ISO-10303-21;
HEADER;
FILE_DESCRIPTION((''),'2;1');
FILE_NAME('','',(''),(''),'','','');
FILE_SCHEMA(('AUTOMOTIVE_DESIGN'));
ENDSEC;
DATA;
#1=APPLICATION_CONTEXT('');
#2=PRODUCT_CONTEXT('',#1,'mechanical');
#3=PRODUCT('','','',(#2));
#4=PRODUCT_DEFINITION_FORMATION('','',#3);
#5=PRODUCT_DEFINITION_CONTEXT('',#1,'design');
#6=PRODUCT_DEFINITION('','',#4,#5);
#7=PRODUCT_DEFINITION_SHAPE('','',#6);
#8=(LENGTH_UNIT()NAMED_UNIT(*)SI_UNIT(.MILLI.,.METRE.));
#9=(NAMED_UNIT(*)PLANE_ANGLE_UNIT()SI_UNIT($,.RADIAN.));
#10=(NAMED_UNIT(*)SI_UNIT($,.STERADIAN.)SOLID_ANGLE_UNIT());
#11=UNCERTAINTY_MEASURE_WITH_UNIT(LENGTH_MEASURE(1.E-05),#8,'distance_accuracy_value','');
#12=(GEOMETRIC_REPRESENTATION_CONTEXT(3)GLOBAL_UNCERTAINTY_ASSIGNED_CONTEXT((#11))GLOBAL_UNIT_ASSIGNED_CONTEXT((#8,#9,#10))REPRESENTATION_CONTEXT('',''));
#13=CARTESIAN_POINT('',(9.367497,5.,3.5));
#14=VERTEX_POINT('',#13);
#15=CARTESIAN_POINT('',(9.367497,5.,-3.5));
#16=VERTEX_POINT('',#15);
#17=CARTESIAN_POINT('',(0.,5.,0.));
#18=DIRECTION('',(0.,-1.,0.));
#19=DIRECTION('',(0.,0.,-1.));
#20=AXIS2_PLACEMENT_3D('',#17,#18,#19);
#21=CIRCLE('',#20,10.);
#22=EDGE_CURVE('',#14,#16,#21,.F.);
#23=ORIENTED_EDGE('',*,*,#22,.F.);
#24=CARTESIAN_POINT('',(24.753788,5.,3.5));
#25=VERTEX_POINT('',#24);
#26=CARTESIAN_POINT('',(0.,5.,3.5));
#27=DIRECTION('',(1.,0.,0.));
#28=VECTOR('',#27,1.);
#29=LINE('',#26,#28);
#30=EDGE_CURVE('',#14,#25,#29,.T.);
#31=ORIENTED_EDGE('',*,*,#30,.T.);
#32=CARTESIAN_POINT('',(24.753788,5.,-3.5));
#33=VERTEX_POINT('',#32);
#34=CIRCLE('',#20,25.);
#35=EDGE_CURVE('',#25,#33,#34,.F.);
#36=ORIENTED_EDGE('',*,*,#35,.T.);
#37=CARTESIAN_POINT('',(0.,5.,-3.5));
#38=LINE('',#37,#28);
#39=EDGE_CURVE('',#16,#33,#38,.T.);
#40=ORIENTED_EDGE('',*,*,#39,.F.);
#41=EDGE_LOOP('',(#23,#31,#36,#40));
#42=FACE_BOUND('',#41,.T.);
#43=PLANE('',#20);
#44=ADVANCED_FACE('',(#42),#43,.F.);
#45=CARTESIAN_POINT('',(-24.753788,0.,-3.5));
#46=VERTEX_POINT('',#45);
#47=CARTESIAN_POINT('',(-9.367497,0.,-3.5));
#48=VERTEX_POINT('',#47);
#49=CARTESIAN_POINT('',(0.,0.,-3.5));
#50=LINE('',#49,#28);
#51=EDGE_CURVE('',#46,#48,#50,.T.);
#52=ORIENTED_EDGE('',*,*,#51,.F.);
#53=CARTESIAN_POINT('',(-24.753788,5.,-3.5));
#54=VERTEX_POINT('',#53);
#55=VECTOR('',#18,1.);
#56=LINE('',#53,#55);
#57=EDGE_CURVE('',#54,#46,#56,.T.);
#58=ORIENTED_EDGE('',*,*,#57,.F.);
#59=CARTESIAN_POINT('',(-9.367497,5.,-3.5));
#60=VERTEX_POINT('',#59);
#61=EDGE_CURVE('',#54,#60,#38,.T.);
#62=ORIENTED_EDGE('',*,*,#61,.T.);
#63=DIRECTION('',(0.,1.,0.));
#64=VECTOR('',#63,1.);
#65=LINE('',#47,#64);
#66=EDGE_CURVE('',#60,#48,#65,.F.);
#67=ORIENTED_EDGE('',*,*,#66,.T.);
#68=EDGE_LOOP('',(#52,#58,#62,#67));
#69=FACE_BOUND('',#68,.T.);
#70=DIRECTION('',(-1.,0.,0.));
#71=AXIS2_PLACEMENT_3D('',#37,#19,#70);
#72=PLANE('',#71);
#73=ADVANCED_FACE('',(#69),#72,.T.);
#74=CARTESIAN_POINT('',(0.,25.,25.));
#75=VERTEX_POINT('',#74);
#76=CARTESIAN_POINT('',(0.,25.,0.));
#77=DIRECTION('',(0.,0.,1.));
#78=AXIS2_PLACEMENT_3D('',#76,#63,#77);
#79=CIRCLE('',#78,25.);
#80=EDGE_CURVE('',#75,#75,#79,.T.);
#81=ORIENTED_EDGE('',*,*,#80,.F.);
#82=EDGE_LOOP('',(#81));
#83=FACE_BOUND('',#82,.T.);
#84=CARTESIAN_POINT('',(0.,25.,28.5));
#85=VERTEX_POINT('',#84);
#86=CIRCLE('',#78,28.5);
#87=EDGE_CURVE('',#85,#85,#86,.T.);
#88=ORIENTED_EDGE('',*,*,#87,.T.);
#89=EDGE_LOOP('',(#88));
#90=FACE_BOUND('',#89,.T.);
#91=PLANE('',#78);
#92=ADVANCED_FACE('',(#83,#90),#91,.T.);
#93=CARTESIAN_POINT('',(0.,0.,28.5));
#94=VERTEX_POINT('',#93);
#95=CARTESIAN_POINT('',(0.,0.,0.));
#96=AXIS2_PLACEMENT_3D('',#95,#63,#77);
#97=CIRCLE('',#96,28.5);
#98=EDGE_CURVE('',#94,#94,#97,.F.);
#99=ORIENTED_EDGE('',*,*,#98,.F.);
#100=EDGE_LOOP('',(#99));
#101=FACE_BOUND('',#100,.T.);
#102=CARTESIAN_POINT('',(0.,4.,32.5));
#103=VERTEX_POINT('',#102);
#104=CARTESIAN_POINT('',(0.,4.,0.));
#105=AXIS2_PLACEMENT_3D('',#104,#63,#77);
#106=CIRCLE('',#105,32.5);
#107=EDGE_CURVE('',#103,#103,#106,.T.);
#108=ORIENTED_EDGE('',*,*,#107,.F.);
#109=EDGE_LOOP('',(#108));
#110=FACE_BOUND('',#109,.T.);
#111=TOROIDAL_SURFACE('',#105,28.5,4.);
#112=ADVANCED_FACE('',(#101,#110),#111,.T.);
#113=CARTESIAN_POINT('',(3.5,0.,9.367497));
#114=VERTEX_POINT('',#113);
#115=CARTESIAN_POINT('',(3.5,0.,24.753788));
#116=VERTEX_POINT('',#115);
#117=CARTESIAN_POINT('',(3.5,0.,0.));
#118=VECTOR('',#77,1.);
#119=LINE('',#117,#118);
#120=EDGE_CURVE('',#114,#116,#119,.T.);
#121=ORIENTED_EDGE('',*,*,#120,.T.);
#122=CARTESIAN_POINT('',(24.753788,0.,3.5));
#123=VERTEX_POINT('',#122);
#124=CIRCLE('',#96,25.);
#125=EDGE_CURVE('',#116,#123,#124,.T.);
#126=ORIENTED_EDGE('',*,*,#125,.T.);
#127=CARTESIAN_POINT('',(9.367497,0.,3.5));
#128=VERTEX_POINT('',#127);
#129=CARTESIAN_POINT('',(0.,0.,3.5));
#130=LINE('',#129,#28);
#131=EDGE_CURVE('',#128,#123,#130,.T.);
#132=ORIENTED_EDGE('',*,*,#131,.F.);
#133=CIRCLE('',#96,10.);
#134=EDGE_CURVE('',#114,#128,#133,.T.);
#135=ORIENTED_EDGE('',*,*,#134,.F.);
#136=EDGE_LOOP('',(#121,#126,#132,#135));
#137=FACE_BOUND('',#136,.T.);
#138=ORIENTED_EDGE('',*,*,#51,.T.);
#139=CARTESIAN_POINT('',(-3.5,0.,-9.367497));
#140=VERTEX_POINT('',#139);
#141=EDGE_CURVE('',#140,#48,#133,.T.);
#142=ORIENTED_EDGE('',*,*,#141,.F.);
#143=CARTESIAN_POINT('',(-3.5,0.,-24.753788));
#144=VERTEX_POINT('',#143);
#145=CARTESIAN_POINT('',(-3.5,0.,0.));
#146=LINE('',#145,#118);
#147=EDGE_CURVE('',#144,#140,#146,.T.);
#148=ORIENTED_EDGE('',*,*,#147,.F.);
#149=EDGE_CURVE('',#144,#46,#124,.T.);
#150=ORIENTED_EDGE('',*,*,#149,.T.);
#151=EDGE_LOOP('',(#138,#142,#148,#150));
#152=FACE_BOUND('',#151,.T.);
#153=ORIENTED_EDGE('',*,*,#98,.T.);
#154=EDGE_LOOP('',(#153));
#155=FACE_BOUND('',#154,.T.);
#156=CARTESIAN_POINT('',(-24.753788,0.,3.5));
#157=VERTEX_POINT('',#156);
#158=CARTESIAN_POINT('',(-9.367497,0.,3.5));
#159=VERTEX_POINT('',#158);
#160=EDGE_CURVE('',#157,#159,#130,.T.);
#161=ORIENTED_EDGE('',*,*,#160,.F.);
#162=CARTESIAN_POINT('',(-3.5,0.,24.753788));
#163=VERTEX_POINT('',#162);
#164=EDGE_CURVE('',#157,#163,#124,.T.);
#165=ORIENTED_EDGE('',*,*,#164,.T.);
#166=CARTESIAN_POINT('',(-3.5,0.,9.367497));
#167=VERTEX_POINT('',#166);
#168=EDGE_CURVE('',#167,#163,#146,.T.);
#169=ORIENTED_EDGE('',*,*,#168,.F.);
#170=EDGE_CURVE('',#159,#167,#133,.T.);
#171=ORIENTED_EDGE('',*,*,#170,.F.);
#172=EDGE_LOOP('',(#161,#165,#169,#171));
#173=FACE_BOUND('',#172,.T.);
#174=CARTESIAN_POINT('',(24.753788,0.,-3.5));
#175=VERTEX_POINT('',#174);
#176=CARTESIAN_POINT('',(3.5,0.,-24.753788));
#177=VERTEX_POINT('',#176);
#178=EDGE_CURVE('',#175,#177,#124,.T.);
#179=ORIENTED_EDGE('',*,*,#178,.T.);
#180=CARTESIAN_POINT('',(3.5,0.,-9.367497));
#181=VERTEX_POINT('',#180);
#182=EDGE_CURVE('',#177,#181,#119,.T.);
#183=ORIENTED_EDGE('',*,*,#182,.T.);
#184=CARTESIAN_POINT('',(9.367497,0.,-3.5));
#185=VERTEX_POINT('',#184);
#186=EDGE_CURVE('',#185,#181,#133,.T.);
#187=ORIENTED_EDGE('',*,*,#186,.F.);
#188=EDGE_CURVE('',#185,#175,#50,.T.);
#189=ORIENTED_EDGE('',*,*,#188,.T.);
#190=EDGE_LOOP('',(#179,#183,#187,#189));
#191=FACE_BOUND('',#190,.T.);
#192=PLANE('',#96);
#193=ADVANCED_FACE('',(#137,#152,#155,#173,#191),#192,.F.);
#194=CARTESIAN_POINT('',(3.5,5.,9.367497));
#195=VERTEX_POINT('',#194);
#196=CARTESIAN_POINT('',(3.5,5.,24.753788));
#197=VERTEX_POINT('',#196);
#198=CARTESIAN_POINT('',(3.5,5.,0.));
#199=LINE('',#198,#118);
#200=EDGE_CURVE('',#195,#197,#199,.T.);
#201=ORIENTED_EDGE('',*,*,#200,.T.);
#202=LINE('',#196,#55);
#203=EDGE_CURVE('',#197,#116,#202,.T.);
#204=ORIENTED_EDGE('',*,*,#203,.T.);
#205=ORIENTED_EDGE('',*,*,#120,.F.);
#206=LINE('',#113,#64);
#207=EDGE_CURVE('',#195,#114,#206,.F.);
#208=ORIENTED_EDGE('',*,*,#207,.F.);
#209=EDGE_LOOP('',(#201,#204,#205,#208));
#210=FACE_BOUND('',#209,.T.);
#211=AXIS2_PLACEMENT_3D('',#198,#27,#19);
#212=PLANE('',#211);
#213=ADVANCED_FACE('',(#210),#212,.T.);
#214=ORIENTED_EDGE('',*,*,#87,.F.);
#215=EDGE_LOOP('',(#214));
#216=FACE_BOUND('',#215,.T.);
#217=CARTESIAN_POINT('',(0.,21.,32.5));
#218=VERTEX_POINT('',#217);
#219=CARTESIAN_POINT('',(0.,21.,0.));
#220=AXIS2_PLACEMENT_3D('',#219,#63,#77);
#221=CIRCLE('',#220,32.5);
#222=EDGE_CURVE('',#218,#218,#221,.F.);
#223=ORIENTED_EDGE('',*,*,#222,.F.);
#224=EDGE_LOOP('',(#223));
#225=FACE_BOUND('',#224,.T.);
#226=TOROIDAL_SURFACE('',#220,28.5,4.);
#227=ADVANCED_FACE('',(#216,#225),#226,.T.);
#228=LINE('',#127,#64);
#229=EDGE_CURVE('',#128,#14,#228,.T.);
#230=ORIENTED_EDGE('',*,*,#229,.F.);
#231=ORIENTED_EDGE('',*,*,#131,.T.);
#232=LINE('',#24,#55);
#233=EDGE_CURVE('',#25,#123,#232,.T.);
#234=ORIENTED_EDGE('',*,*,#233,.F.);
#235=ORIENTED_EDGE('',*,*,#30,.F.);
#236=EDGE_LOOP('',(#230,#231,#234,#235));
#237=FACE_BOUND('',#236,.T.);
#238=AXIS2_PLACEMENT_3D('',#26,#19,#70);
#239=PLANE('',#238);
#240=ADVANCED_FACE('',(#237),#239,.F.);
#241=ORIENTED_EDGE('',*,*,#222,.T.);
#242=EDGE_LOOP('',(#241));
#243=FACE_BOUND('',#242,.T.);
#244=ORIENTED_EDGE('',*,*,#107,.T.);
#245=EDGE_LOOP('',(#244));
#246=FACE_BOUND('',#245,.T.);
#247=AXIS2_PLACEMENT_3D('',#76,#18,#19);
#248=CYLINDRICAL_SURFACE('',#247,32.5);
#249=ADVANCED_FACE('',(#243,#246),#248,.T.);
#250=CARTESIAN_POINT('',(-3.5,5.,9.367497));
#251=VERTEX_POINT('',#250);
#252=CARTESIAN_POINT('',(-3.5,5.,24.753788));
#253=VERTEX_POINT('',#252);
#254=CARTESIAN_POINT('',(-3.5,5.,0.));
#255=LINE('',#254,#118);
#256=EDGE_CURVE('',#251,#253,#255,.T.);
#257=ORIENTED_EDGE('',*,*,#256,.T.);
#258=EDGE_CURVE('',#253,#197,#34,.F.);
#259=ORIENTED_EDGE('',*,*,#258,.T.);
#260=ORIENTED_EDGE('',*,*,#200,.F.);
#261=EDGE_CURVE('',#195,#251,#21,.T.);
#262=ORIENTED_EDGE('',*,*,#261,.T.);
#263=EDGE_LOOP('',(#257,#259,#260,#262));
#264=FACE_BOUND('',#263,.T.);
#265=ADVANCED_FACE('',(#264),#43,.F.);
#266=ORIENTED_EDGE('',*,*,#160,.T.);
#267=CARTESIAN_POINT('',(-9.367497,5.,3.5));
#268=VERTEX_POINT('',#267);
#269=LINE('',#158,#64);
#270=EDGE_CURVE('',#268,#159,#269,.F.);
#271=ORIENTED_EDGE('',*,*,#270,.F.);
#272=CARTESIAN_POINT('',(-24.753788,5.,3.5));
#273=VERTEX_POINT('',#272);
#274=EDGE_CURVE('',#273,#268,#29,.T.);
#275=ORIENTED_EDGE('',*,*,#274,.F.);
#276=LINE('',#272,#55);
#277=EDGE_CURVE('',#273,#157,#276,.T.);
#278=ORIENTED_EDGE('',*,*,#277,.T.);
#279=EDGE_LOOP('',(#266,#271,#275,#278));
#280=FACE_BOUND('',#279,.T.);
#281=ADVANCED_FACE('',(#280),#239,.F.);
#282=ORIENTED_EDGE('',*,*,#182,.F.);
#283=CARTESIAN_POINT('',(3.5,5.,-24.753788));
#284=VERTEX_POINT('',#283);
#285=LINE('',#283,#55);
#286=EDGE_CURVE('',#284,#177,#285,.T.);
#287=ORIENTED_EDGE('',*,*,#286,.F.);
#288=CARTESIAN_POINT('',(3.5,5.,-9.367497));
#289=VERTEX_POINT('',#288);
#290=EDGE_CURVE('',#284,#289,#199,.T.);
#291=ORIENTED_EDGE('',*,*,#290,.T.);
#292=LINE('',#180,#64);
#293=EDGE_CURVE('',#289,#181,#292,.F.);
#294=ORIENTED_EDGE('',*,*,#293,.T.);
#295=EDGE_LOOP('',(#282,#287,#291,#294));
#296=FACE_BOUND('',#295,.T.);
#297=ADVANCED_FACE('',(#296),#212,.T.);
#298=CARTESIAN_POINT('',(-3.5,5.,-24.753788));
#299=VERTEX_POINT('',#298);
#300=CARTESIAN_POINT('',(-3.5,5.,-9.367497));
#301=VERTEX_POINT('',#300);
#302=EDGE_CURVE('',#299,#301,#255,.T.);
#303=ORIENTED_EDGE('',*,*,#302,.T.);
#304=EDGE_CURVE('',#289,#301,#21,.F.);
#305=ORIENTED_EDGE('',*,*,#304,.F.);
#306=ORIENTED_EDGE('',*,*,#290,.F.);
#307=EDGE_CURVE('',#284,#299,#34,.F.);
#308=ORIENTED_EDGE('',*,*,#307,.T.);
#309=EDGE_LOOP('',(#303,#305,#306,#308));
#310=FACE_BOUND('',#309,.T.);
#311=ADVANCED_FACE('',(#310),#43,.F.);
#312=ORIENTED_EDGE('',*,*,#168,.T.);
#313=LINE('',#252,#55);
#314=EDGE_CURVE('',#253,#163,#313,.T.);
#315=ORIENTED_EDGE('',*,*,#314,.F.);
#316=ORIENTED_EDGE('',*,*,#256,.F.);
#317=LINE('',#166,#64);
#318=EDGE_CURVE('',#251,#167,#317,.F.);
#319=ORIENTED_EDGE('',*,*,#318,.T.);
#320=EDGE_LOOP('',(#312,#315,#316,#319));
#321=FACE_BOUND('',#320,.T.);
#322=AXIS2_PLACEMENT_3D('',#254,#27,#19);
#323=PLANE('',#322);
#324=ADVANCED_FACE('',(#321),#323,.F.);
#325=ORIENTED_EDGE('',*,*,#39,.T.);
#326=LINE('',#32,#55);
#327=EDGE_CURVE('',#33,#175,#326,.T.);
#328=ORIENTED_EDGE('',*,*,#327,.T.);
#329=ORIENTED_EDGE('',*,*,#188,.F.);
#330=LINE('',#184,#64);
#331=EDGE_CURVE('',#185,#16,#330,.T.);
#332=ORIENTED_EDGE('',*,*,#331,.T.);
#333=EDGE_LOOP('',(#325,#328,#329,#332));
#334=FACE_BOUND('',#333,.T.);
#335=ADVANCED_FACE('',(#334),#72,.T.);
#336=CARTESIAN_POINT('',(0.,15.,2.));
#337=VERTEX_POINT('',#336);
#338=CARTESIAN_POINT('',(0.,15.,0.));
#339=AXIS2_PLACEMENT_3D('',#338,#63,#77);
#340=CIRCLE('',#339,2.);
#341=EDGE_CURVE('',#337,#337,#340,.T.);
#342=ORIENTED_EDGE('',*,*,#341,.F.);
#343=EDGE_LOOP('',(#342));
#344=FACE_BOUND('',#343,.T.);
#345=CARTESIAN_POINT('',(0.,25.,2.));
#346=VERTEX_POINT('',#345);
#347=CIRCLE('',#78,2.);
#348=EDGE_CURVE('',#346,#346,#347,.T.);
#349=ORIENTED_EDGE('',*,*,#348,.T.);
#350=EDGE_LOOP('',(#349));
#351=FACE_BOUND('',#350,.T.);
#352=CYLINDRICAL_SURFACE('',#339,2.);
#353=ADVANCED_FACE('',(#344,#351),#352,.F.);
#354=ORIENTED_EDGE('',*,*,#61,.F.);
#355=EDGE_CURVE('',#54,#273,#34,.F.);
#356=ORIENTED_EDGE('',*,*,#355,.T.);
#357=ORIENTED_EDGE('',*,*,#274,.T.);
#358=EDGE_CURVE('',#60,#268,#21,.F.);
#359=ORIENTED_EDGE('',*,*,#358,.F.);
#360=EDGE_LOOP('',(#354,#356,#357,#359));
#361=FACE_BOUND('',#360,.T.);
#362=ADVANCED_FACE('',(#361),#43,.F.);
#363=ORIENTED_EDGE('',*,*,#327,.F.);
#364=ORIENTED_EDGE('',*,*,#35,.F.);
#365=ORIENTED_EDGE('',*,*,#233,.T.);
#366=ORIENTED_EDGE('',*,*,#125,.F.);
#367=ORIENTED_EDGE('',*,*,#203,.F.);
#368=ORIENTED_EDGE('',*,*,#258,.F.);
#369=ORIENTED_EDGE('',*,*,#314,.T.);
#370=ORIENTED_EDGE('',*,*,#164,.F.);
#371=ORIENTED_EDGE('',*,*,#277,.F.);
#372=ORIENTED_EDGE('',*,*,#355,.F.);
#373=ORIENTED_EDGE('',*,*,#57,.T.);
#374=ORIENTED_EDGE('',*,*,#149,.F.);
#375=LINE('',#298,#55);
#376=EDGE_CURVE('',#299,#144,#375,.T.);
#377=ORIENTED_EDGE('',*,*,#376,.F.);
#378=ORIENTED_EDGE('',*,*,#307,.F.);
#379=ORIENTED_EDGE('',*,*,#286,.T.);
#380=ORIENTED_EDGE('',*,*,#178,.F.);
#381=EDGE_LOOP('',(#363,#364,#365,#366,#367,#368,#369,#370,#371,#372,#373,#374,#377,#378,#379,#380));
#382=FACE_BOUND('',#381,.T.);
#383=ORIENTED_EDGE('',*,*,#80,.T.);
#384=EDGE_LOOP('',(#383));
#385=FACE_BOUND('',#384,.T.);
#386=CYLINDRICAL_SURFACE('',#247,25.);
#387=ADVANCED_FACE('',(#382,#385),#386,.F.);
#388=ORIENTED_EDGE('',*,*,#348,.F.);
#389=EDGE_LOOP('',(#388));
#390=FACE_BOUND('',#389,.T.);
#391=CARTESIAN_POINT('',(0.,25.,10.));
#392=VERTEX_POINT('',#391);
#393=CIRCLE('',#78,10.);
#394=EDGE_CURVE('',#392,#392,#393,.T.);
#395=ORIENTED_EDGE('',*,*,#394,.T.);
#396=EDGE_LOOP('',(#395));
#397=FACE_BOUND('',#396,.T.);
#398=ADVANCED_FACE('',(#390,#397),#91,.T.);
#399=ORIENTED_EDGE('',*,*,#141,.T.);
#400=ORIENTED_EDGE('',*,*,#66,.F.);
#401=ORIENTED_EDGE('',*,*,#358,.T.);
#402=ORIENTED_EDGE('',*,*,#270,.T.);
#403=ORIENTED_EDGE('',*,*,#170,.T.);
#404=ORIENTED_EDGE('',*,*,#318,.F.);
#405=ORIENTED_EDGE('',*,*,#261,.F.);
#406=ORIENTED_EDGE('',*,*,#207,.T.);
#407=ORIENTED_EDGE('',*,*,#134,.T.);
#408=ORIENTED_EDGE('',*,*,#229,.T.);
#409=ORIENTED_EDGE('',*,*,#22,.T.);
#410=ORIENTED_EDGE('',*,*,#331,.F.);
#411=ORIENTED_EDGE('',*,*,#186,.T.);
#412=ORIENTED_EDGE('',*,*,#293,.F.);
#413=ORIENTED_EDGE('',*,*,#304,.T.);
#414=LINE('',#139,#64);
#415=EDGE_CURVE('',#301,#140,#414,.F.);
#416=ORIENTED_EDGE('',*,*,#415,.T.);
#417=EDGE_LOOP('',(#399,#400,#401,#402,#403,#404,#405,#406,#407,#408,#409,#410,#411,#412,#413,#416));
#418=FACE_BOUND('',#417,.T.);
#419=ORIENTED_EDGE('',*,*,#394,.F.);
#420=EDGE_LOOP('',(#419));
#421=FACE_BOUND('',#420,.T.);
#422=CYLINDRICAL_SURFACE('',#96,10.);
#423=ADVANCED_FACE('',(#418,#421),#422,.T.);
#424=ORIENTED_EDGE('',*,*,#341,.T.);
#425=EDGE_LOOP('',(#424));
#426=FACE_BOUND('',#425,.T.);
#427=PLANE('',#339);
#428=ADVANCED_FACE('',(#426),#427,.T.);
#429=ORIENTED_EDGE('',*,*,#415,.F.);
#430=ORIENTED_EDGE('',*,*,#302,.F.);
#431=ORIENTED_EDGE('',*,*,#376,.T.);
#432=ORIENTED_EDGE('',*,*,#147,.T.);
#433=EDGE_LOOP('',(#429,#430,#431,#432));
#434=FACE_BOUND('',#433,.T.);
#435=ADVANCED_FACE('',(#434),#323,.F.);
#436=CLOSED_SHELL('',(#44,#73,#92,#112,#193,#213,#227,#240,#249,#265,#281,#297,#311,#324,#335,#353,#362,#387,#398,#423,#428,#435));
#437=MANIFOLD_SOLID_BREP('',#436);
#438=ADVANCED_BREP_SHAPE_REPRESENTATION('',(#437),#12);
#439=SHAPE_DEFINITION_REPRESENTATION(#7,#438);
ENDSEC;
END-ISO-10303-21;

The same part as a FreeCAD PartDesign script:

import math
import FreeCAD as App
import Part
import Sketcher
from FreeCAD import Vector


def edges_at(feature, points):
    """Names of the edges that pass closest to the given points."""
    edges = feature.Shape.Edges
    near = lambda p: min(range(len(edges)), key=lambda i: edges[i].distToShape(Part.Vertex(*p))[0])
    return sorted({f"Edge{near(p) + 1}" for p in points})

doc = App.newDocument("Part")
body = doc.addObject("PartDesign::Body", "Body")

# Sketch on XZ plane
sketch1 = body.newObject("Sketcher::SketchObject", "Sketch")
sketch1.AttachmentSupport = (doc.getObject("XZ_Plane"), [""])
sketch1.MapMode = "FlatFace"
sketch1.addGeometry([
    Part.Circle(Vector(0, 0, 0), Vector(0, 0, 1), 32),
    Part.Circle(Vector(0, 0, 0), Vector(0, 0, 1), 25),
], False)
sketch1.addConstraint([
    Sketcher.Constraint("Coincident", 0, 3, -1, 1),
    Sketcher.Constraint("Coincident", 1, 3, -1, 1),
    Sketcher.Constraint("Diameter", 0, 65.0),
    Sketcher.Constraint("Diameter", 1, 50.0),
])
pad1 = body.newObject("PartDesign::Pad", "Pad")
pad1.Profile = sketch1
pad1.Length = 25
pad1.Reversed = True
body2 = doc.addObject("PartDesign::Body", "Body001")

# Sketch on XZ plane
sketch2 = body2.newObject("Sketcher::SketchObject", "Sketch001")
sketch2.AttachmentSupport = (doc.getObject("XZ_Plane001"), [""])
sketch2.MapMode = "FlatFace"
sketch2.AttachmentOffset = App.Placement(Vector(0, 0, -25), App.Rotation())
sketch2.addGeometry(Part.Circle(Vector(0, 0, 0), Vector(0, 0, 1), 10), False)
sketch2.addConstraint([
    Sketcher.Constraint("Coincident", 0, 3, -1, 1),
    Sketcher.Constraint("Diameter", 0, 20.0),
])
pad2 = body2.newObject("PartDesign::Pad", "Pad001")
pad2.Profile = sketch2
pad2.Length = 25

# Sketch on XZ plane
sketch3 = body2.newObject("Sketcher::SketchObject", "Sketch002")
sketch3.AttachmentSupport = (doc.getObject("XZ_Plane001"), [""])
sketch3.MapMode = "FlatFace"
sketch3.AttachmentOffset = App.Placement(Vector(0, 0, -25), App.Rotation())
sketch3.addGeometry(Part.Circle(Vector(0, 0, 0), Vector(0, 0, 1), 2), False)
sketch3.addConstraint([
    Sketcher.Constraint("Coincident", 0, 3, -1, 1),
    Sketcher.Constraint("Diameter", 0, 4.0),
])
pocket1 = body2.newObject("PartDesign::Pocket", "Pocket")
pocket1.Profile = sketch3
pocket1.Length = 10
pocket1.Reversed = True
body.AllowCompound = True
doc.recompute()

boolean = body.newObject("PartDesign::Boolean", "Boolean")
boolean.Type = "Fuse"
boolean.addObjects([body2])

# Sketch on XZ plane
sketch4 = body.newObject("Sketcher::SketchObject", "Sketch003")
sketch4.AttachmentSupport = (doc.getObject("XZ_Plane"), [""])
sketch4.MapMode = "FlatFace"
sketch4.addGeometry([
    Part.LineSegment(Vector(-3.5, -3.5, 0), Vector(-3.5, -25, 0)),  # 0
    Part.ArcOfCircle(Part.Circle(Vector(0, -25, 0), Vector(0, 0, 1), 3.5), math.radians(180), math.radians(360)),  # 1
    Part.LineSegment(Vector(3.5, -25, 0), Vector(3.5, -3.5, 0)),  # 2
    Part.LineSegment(Vector(3.5, -3.5, 0), Vector(-3.5, -3.5, 0)),  # 3
    Part.LineSegment(Vector(-25, -3.5, 0), Vector(-3.5, -3.5, 0)),  # 4
    Part.LineSegment(Vector(-3.5, -3.5, 0), Vector(-3.5, 3.5, 0)),  # 5
    Part.LineSegment(Vector(-3.5, 3.5, 0), Vector(-25, 3.5, 0)),  # 6
    Part.ArcOfCircle(Part.Circle(Vector(-25, 0, 0), Vector(0, 0, 1), 3.5), math.radians(90), math.radians(270)),  # 7
    Part.LineSegment(Vector(-3.5, 25, 0), Vector(-3.5, 3.5, 0)),  # 8
    Part.LineSegment(Vector(-3.5, 3.5, 0), Vector(3.5, 3.5, 0)),  # 9
    Part.LineSegment(Vector(3.5, 3.5, 0), Vector(3.5, 25, 0)),  # 10
    Part.ArcOfCircle(Part.Circle(Vector(0, 25, 0), Vector(0, 0, 1), 3.5), math.radians(0), math.radians(180)),  # 11
    Part.LineSegment(Vector(3.5, 3.5, 0), Vector(3.5, -3.5, 0)),  # 12
    Part.LineSegment(Vector(3.5, -3.5, 0), Vector(25, -3.5, 0)),  # 13
    Part.ArcOfCircle(Part.Circle(Vector(25, 0, 0), Vector(0, 0, 1), 3.5), math.radians(-90), math.radians(90)),  # 14
    Part.LineSegment(Vector(25, 3.5, 0), Vector(3.5, 3.5, 0)),  # 15
], False)
sketch4.addConstraint([
    Sketcher.Constraint("Tangent", 0, 2, 1, 1),
    Sketcher.Constraint("Tangent", 1, 2, 2, 1),
    Sketcher.Constraint("Coincident", 2, 2, 3, 1),
    Sketcher.Constraint("Coincident", 3, 2, 0, 1),
    Sketcher.Constraint("Coincident", 4, 2, 5, 1),
    Sketcher.Constraint("Coincident", 5, 2, 6, 1),
    Sketcher.Constraint("Tangent", 6, 2, 7, 1),
    Sketcher.Constraint("Tangent", 7, 2, 4, 1),
    Sketcher.Constraint("Coincident", 8, 2, 9, 1),
    Sketcher.Constraint("Coincident", 9, 2, 10, 1),
    Sketcher.Constraint("Tangent", 10, 2, 11, 1),
    Sketcher.Constraint("Tangent", 11, 2, 8, 1),
    Sketcher.Constraint("Coincident", 12, 2, 13, 1),
    Sketcher.Constraint("Tangent", 13, 2, 14, 1),
    Sketcher.Constraint("Tangent", 14, 2, 15, 1),
    Sketcher.Constraint("Coincident", 15, 2, 12, 1),
    Sketcher.Constraint("Vertical", 0),
    Sketcher.Constraint("Vertical", 2),
    Sketcher.Constraint("Horizontal", 3),
    Sketcher.Constraint("Horizontal", 4),
    Sketcher.Constraint("Vertical", 5),
    Sketcher.Constraint("Horizontal", 6),
    Sketcher.Constraint("Vertical", 8),
    Sketcher.Constraint("Horizontal", 9),
    Sketcher.Constraint("Vertical", 10),
    Sketcher.Constraint("Vertical", 12),
    Sketcher.Constraint("Horizontal", 13),
    Sketcher.Constraint("Horizontal", 15),
    Sketcher.Constraint("Coincident", 4, 2, 3, 2),
    Sketcher.Constraint("Coincident", 8, 2, 5, 2),
    Sketcher.Constraint("Coincident", 12, 2, 2, 2),
    Sketcher.Constraint("Coincident", 15, 2, 9, 2),
    Sketcher.Constraint("Equal", 1, 7),
    Sketcher.Constraint("Symmetric", 1, 3, 11, 3, -1, 1),
    Sketcher.Constraint("Symmetric", 7, 3, 14, 3, -1, 1),
    Sketcher.Constraint("Equal", 15, 0),
    Sketcher.Constraint("Radius", 1, 3.5),
    Sketcher.Constraint("DistanceX", 4, 1, 4, 2, 21.5),
])
pad3 = body.newObject("PartDesign::Pad", "Pad002")
pad3.Profile = sketch4
pad3.Length = 5
pad3.Reversed = True
doc.recompute()

fillet = body.newObject("PartDesign::Fillet", "Fillet")
fillet.Base = (pad3, edges_at(pad3, [(0, 0, -32.5), (0, 25, -32.5)]))
fillet.Radius = 4

doc.recompute()
